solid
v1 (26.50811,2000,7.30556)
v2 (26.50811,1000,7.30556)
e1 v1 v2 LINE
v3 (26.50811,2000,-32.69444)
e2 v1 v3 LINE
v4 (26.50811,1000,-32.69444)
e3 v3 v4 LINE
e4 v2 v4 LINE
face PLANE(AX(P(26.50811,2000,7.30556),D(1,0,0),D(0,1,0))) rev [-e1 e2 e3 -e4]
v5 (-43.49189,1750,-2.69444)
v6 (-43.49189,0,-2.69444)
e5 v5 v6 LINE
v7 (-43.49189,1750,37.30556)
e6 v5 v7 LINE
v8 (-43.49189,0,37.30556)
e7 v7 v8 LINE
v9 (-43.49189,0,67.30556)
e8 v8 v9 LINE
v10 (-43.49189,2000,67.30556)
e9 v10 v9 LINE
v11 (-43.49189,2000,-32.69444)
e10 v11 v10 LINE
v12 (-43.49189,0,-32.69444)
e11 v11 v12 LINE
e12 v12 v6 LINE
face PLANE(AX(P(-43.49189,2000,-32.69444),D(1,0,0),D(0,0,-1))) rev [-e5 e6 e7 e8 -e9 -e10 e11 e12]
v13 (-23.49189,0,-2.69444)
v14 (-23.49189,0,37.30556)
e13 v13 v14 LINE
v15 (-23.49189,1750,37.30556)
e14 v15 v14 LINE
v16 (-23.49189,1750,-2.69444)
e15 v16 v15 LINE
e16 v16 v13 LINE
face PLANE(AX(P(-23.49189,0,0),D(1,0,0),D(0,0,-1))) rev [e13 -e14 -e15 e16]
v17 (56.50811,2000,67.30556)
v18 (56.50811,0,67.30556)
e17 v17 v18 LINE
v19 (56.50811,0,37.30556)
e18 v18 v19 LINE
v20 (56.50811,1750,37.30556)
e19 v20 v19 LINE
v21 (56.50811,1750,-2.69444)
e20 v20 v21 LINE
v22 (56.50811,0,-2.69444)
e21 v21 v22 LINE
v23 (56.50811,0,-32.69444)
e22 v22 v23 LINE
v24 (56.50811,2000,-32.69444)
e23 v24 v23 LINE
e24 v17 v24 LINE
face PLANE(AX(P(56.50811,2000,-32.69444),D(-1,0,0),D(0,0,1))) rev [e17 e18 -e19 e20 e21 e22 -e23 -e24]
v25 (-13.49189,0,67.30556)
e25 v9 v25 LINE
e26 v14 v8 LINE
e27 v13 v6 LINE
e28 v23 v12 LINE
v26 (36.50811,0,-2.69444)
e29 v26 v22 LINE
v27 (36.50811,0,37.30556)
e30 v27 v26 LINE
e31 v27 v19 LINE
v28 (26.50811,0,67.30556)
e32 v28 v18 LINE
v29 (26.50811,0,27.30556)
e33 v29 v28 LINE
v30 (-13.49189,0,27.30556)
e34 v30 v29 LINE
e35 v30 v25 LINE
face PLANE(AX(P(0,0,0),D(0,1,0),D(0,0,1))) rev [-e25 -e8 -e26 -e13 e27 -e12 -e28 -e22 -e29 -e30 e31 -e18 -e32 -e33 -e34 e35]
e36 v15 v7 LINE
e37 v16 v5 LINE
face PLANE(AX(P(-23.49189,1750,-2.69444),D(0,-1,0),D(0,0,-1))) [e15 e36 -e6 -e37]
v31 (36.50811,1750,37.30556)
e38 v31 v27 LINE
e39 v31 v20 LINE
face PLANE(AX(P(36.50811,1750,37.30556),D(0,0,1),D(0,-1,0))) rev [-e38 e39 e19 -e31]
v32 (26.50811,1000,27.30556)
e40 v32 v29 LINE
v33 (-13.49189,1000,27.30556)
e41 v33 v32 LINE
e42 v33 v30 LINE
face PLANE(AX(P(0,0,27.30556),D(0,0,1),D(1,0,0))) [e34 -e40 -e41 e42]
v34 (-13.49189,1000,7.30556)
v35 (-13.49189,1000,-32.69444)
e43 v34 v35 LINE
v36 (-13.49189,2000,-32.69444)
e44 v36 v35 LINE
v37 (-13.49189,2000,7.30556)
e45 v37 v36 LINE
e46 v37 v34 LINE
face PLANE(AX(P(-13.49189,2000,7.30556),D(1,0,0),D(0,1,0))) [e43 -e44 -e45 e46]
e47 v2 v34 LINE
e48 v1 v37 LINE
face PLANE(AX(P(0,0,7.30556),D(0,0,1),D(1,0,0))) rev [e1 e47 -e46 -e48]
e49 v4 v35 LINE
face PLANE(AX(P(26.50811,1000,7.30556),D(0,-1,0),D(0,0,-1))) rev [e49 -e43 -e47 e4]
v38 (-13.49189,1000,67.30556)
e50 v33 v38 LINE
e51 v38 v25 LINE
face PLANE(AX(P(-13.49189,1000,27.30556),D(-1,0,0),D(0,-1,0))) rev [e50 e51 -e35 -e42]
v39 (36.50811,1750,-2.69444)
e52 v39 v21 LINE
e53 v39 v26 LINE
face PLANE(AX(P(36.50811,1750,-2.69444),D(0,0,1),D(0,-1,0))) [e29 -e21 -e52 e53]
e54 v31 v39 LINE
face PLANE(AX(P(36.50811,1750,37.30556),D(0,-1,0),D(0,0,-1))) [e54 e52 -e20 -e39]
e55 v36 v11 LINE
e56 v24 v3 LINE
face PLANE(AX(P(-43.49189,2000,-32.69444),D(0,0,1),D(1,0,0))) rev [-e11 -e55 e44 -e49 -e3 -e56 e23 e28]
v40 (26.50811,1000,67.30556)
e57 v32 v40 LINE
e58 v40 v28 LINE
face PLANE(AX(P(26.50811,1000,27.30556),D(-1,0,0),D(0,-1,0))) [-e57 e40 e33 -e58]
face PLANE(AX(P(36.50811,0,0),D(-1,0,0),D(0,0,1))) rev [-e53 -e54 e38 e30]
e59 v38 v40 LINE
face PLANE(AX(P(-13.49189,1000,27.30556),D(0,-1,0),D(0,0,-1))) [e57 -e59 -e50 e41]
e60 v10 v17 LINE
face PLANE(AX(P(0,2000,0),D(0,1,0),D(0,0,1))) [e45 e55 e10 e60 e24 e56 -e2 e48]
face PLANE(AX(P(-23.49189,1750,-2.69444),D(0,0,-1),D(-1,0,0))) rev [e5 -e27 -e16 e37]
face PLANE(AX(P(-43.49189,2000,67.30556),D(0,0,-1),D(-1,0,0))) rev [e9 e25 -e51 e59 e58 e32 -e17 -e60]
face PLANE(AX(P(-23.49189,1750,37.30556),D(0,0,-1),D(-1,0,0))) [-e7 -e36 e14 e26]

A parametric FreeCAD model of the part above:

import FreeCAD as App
import Part
import Sketcher
from FreeCAD import Vector
Q = App.Units.Quantity

doc = App.newDocument("Part")
params = doc.addObject("Spreadsheet::Sheet", "Params")
for row, (alias, value) in enumerate([
    ("sketch1_width", "100 mm"),
    ("pad1_length", "2000 mm"),
    ("sketch2_width", "40 mm"),
    ("sketch2_height", "1000 mm"),
    ("pocket1_length", "40 mm"),
    ("sketch3_width", "40 mm"),
    ("sketch3_height", "1000 mm"),
    ("pocket2_length", "40 mm"),
    ("sketch4_width", "1750 mm"),
    ("sketch4_height", "40 mm"),
    ("pocket3_length", "20 mm"),
    ("sketch5_width", "1750 mm"),
    ("sketch5_height", "40 mm"),
    ("pocket4_length", "20 mm"),
], start=1):
    params.set(f"A{row}", alias)
    params.set(f"B{row}", "=" + value)
    params.setAlias(f"B{row}", alias)

body = doc.addObject("PartDesign::Body", "Body")

# Sketch on XZ plane
sketch1 = doc.addObject("Sketcher::SketchObject", "Sketch")
body.addObject(sketch1)
sketch1.AttachmentSupport = (doc.XZ_Plane, [""])
sketch1.MapMode = "FlatFace"
sketch1.addGeometry([
    Part.LineSegment(Vector(-43, -33, 0), Vector(-43, 67, 0)),
    Part.LineSegment(Vector(-43, 67, 0), Vector(57, 67, 0)),
    Part.LineSegment(Vector(57, 67, 0), Vector(57, -33, 0)),
    Part.LineSegment(Vector(57, -33, 0), Vector(-43, -33, 0)),
], False)
sketch1.addConstraint([
    Sketcher.Constraint("Coincident", 0, 2, 1, 1),
    Sketcher.Constraint("Coincident", 1, 2, 2, 1),
    Sketcher.Constraint("Coincident", 2, 2, 3, 1),
    Sketcher.Constraint("Coincident", 3, 2, 0, 1),
    Sketcher.Constraint("Vertical", 0),
    Sketcher.Constraint("Horizontal", 1),
    Sketcher.Constraint("Vertical", 2),
    Sketcher.Constraint("Horizontal", 3),
    Sketcher.Constraint("Equal", 3, 0),
    Sketcher.Constraint("DistanceX", 1, 1, 1, 2, Q("100 mm")),
    Sketcher.Constraint("DistanceX", 0, 2, -1, 1, Q("43.49189 mm")),
    Sketcher.Constraint("DistanceY", -1, 1, 0, 2, Q("67.30556 mm")),
])
sketch1.setExpression("Constraints[9]", "Params.sketch1_width")
pad1 = doc.addObject("PartDesign::Pad", "Pad")
body.addObject(pad1)
pad1.Profile = sketch1
pad1.setExpression("Length", "Params.pad1_length")
pad1.Reversed = True

# Sketch on XY plane
sketch2 = doc.addObject("Sketcher::SketchObject", "Sketch001")
body.addObject(sketch2)
sketch2.AttachmentSupport = (doc.XY_Plane, [""])
sketch2.MapMode = "FlatFace"
sketch2.AttachmentOffset = App.Placement(Vector(0, 0, 67.30556), App.Rotation())
sketch2.addGeometry([
    Part.LineSegment(Vector(-13, 1000, 0), Vector(-13, 0, 0)),
    Part.LineSegment(Vector(-13, 0, 0), Vector(27, 0, 0)),
    Part.LineSegment(Vector(27, 0, 0), Vector(27, 1000, 0)),
    Part.LineSegment(Vector(27, 1000, 0), Vector(-13, 1000, 0)),
], False)
sketch2.addConstraint([
    Sketcher.Constraint("Coincident", 0, 2, 1, 1),
    Sketcher.Constraint("Coincident", 1, 2, 2, 1),
    Sketcher.Constraint("Coincident", 2, 2, 3, 1),
    Sketcher.Constraint("Coincident", 3, 2, 0, 1),
    Sketcher.Constraint("Vertical", 0),
    Sketcher.Constraint("Horizontal", 1),
    Sketcher.Constraint("Vertical", 2),
    Sketcher.Constraint("Horizontal", 3),
    Sketcher.Constraint("PointOnObject", 0, 2, -1),
    Sketcher.Constraint("DistanceX", 1, 1, 1, 2, Q("40 mm")),
    Sketcher.Constraint("DistanceY", 0, 2, 0, 1, Q("1000 mm")),
    Sketcher.Constraint("DistanceX", 0, 2, -1, 1, Q("13.49189 mm")),
])
sketch2.setExpression("Constraints[9]", "Params.sketch2_width")
sketch2.setExpression("Constraints[10]", "Params.sketch2_height")
pocket1 = doc.addObject("PartDesign::Pocket", "Pocket")
body.addObject(pocket1)
pocket1.Profile = sketch2
pocket1.setExpression("Length", "Params.pocket1_length")

# Sketch on XY plane
sketch3 = doc.addObject("Sketcher::SketchObject", "Sketch002")
body.addObject(sketch3)
sketch3.AttachmentSupport = (doc.XY_Plane, [""])
sketch3.MapMode = "FlatFace"
sketch3.AttachmentOffset = App.Placement(Vector(0, 0, -32.69444), App.Rotation())
sketch3.addGeometry([
    Part.LineSegment(Vector(27, 2000, 0), Vector(27, 1000, 0)),
    Part.LineSegment(Vector(27, 1000, 0), Vector(-13, 1000, 0)),
    Part.LineSegment(Vector(-13, 1000, 0), Vector(-13, 2000, 0)),
    Part.LineSegment(Vector(-13, 2000, 0), Vector(27, 2000, 0)),
], False)
sketch3.addConstraint([
    Sketcher.Constraint("Coincident", 0, 2, 1, 1),
    Sketcher.Constraint("Coincident", 1, 2, 2, 1),
    Sketcher.Constraint("Coincident", 2, 2, 3, 1),
    Sketcher.Constraint("Coincident", 3, 2, 0, 1),
    Sketcher.Constraint("Vertical", 0),
    Sketcher.Constraint("Horizontal", 1),
    Sketcher.Constraint("Vertical", 2),
    Sketcher.Constraint("Horizontal", 3),
    Sketcher.Constraint("DistanceX", 1, 2, 1, 1, Q("40 mm")),
    Sketcher.Constraint("DistanceY", 0, 2, 0, 1, Q("1000 mm")),
    Sketcher.Constraint("DistanceY", -1, 1, 0, 2, Q("1000 mm")),
    Sketcher.Constraint("DistanceX", -1, 1, 0, 2, Q("26.50811 mm")),
])
sketch3.setExpression("Constraints[8]", "Params.sketch3_width")
sketch3.setExpression("Constraints[9]", "Params.sketch3_height")
pocket2 = doc.addObject("PartDesign::Pocket", "Pocket001")
body.addObject(pocket2)
pocket2.Profile = sketch3
pocket2.setExpression("Length", "Params.pocket2_length")
pocket2.Reversed = True

# Sketch on YZ plane
sketch4 = doc.addObject("Sketcher::SketchObject", "Sketch003")
body.addObject(sketch4)
sketch4.AttachmentSupport = (doc.YZ_Plane, [""])
sketch4.MapMode = "FlatFace"
sketch4.AttachmentOffset = App.Placement(Vector(0, 0, 56.50811), App.Rotation())
sketch4.addGeometry([
    Part.LineSegment(Vector(1750, 37, 0), Vector(0, 37, 0)),
    Part.LineSegment(Vector(0, 37, 0), Vector(0, -3, 0)),
    Part.LineSegment(Vector(0, -3, 0), Vector(1750, -3, 0)),
    Part.LineSegment(Vector(1750, -3, 0), Vector(1750, 37, 0)),
], False)
sketch4.addConstraint([
    Sketcher.Constraint("Coincident", 0, 2, 1, 1),
    Sketcher.Constraint("Coincident", 1, 2, 2, 1),
    Sketcher.Constraint("Coincident", 2, 2, 3, 1),
    Sketcher.Constraint("Coincident", 3, 2, 0, 1),
    Sketcher.Constraint("Horizontal", 0),
    Sketcher.Constraint("Vertical", 1),
    Sketcher.Constraint("Horizontal", 2),
    Sketcher.Constraint("Vertical", 3),
    Sketcher.Constraint("PointOnObject", 0, 2, -2),
    Sketcher.Constraint("DistanceX", 0, 2, 0, 1, Q("1750 mm")),
    Sketcher.Constraint("DistanceY", 1, 2, 1, 1, Q("40 mm")),
    Sketcher.Constraint("DistanceY", -1, 1, 0, 2, Q("37.30556 mm")),
])
sketch4.setExpression("Constraints[9]", "Params.sketch4_width")
sketch4.setExpression("Constraints[10]", "Params.sketch4_height")
pocket3 = doc.addObject("PartDesign::Pocket", "Pocket002")
body.addObject(pocket3)
pocket3.Profile = sketch4
pocket3.setExpression("Length", "Params.pocket3_length")

# Sketch on YZ plane
sketch5 = doc.addObject("Sketcher::SketchObject", "Sketch004")
body.addObject(sketch5)
sketch5.AttachmentSupport = (doc.YZ_Plane, [""])
sketch5.MapMode = "FlatFace"
sketch5.AttachmentOffset = App.Placement(Vector(0, 0, -43.49189), App.Rotation())
sketch5.addGeometry([
    Part.LineSegment(Vector(1750, -3, 0), Vector(0, -3, 0)),
    Part.LineSegment(Vector(0, -3, 0), Vector(0, 37, 0)),
    Part.LineSegment(Vector(0, 37, 0), Vector(1750, 37, 0)),
    Part.LineSegment(Vector(1750, 37, 0), Vector(1750, -3, 0)),
], False)
sketch5.addConstraint([
    Sketcher.Constraint("Coincident", 0, 2, 1, 1),
    Sketcher.Constraint("Coincident", 1, 2, 2, 1),
    Sketcher.Constraint("Coincident", 2, 2, 3, 1),
    Sketcher.Constraint("Coincident", 3, 2, 0, 1),
    Sketcher.Constraint("Horizontal", 0),
    Sketcher.Constraint("Vertical", 1),
    Sketcher.Constraint("Horizontal", 2),
    Sketcher.Constraint("Vertical", 3),
    Sketcher.Constraint("PointOnObject", 0, 2, -2),
    Sketcher.Constraint("DistanceX", 0, 2, 0, 1, Q("1750 mm")),
    Sketcher.Constraint("DistanceY", 1, 1, 1, 2, Q("40 mm")),
    Sketcher.Constraint("DistanceY", 0, 2, -1, 1, Q("2.69444 mm")),
])
sketch5.setExpression("Constraints[9]", "Params.sketch5_width")
sketch5.setExpression("Constraints[10]", "Params.sketch5_height")
pocket4 = doc.addObject("PartDesign::Pocket", "Pocket003")
body.addObject(pocket4)
pocket4.Profile = sketch5
pocket4.setExpression("Length", "Params.pocket4_length")
pocket4.Reversed = True

doc.recompute()
